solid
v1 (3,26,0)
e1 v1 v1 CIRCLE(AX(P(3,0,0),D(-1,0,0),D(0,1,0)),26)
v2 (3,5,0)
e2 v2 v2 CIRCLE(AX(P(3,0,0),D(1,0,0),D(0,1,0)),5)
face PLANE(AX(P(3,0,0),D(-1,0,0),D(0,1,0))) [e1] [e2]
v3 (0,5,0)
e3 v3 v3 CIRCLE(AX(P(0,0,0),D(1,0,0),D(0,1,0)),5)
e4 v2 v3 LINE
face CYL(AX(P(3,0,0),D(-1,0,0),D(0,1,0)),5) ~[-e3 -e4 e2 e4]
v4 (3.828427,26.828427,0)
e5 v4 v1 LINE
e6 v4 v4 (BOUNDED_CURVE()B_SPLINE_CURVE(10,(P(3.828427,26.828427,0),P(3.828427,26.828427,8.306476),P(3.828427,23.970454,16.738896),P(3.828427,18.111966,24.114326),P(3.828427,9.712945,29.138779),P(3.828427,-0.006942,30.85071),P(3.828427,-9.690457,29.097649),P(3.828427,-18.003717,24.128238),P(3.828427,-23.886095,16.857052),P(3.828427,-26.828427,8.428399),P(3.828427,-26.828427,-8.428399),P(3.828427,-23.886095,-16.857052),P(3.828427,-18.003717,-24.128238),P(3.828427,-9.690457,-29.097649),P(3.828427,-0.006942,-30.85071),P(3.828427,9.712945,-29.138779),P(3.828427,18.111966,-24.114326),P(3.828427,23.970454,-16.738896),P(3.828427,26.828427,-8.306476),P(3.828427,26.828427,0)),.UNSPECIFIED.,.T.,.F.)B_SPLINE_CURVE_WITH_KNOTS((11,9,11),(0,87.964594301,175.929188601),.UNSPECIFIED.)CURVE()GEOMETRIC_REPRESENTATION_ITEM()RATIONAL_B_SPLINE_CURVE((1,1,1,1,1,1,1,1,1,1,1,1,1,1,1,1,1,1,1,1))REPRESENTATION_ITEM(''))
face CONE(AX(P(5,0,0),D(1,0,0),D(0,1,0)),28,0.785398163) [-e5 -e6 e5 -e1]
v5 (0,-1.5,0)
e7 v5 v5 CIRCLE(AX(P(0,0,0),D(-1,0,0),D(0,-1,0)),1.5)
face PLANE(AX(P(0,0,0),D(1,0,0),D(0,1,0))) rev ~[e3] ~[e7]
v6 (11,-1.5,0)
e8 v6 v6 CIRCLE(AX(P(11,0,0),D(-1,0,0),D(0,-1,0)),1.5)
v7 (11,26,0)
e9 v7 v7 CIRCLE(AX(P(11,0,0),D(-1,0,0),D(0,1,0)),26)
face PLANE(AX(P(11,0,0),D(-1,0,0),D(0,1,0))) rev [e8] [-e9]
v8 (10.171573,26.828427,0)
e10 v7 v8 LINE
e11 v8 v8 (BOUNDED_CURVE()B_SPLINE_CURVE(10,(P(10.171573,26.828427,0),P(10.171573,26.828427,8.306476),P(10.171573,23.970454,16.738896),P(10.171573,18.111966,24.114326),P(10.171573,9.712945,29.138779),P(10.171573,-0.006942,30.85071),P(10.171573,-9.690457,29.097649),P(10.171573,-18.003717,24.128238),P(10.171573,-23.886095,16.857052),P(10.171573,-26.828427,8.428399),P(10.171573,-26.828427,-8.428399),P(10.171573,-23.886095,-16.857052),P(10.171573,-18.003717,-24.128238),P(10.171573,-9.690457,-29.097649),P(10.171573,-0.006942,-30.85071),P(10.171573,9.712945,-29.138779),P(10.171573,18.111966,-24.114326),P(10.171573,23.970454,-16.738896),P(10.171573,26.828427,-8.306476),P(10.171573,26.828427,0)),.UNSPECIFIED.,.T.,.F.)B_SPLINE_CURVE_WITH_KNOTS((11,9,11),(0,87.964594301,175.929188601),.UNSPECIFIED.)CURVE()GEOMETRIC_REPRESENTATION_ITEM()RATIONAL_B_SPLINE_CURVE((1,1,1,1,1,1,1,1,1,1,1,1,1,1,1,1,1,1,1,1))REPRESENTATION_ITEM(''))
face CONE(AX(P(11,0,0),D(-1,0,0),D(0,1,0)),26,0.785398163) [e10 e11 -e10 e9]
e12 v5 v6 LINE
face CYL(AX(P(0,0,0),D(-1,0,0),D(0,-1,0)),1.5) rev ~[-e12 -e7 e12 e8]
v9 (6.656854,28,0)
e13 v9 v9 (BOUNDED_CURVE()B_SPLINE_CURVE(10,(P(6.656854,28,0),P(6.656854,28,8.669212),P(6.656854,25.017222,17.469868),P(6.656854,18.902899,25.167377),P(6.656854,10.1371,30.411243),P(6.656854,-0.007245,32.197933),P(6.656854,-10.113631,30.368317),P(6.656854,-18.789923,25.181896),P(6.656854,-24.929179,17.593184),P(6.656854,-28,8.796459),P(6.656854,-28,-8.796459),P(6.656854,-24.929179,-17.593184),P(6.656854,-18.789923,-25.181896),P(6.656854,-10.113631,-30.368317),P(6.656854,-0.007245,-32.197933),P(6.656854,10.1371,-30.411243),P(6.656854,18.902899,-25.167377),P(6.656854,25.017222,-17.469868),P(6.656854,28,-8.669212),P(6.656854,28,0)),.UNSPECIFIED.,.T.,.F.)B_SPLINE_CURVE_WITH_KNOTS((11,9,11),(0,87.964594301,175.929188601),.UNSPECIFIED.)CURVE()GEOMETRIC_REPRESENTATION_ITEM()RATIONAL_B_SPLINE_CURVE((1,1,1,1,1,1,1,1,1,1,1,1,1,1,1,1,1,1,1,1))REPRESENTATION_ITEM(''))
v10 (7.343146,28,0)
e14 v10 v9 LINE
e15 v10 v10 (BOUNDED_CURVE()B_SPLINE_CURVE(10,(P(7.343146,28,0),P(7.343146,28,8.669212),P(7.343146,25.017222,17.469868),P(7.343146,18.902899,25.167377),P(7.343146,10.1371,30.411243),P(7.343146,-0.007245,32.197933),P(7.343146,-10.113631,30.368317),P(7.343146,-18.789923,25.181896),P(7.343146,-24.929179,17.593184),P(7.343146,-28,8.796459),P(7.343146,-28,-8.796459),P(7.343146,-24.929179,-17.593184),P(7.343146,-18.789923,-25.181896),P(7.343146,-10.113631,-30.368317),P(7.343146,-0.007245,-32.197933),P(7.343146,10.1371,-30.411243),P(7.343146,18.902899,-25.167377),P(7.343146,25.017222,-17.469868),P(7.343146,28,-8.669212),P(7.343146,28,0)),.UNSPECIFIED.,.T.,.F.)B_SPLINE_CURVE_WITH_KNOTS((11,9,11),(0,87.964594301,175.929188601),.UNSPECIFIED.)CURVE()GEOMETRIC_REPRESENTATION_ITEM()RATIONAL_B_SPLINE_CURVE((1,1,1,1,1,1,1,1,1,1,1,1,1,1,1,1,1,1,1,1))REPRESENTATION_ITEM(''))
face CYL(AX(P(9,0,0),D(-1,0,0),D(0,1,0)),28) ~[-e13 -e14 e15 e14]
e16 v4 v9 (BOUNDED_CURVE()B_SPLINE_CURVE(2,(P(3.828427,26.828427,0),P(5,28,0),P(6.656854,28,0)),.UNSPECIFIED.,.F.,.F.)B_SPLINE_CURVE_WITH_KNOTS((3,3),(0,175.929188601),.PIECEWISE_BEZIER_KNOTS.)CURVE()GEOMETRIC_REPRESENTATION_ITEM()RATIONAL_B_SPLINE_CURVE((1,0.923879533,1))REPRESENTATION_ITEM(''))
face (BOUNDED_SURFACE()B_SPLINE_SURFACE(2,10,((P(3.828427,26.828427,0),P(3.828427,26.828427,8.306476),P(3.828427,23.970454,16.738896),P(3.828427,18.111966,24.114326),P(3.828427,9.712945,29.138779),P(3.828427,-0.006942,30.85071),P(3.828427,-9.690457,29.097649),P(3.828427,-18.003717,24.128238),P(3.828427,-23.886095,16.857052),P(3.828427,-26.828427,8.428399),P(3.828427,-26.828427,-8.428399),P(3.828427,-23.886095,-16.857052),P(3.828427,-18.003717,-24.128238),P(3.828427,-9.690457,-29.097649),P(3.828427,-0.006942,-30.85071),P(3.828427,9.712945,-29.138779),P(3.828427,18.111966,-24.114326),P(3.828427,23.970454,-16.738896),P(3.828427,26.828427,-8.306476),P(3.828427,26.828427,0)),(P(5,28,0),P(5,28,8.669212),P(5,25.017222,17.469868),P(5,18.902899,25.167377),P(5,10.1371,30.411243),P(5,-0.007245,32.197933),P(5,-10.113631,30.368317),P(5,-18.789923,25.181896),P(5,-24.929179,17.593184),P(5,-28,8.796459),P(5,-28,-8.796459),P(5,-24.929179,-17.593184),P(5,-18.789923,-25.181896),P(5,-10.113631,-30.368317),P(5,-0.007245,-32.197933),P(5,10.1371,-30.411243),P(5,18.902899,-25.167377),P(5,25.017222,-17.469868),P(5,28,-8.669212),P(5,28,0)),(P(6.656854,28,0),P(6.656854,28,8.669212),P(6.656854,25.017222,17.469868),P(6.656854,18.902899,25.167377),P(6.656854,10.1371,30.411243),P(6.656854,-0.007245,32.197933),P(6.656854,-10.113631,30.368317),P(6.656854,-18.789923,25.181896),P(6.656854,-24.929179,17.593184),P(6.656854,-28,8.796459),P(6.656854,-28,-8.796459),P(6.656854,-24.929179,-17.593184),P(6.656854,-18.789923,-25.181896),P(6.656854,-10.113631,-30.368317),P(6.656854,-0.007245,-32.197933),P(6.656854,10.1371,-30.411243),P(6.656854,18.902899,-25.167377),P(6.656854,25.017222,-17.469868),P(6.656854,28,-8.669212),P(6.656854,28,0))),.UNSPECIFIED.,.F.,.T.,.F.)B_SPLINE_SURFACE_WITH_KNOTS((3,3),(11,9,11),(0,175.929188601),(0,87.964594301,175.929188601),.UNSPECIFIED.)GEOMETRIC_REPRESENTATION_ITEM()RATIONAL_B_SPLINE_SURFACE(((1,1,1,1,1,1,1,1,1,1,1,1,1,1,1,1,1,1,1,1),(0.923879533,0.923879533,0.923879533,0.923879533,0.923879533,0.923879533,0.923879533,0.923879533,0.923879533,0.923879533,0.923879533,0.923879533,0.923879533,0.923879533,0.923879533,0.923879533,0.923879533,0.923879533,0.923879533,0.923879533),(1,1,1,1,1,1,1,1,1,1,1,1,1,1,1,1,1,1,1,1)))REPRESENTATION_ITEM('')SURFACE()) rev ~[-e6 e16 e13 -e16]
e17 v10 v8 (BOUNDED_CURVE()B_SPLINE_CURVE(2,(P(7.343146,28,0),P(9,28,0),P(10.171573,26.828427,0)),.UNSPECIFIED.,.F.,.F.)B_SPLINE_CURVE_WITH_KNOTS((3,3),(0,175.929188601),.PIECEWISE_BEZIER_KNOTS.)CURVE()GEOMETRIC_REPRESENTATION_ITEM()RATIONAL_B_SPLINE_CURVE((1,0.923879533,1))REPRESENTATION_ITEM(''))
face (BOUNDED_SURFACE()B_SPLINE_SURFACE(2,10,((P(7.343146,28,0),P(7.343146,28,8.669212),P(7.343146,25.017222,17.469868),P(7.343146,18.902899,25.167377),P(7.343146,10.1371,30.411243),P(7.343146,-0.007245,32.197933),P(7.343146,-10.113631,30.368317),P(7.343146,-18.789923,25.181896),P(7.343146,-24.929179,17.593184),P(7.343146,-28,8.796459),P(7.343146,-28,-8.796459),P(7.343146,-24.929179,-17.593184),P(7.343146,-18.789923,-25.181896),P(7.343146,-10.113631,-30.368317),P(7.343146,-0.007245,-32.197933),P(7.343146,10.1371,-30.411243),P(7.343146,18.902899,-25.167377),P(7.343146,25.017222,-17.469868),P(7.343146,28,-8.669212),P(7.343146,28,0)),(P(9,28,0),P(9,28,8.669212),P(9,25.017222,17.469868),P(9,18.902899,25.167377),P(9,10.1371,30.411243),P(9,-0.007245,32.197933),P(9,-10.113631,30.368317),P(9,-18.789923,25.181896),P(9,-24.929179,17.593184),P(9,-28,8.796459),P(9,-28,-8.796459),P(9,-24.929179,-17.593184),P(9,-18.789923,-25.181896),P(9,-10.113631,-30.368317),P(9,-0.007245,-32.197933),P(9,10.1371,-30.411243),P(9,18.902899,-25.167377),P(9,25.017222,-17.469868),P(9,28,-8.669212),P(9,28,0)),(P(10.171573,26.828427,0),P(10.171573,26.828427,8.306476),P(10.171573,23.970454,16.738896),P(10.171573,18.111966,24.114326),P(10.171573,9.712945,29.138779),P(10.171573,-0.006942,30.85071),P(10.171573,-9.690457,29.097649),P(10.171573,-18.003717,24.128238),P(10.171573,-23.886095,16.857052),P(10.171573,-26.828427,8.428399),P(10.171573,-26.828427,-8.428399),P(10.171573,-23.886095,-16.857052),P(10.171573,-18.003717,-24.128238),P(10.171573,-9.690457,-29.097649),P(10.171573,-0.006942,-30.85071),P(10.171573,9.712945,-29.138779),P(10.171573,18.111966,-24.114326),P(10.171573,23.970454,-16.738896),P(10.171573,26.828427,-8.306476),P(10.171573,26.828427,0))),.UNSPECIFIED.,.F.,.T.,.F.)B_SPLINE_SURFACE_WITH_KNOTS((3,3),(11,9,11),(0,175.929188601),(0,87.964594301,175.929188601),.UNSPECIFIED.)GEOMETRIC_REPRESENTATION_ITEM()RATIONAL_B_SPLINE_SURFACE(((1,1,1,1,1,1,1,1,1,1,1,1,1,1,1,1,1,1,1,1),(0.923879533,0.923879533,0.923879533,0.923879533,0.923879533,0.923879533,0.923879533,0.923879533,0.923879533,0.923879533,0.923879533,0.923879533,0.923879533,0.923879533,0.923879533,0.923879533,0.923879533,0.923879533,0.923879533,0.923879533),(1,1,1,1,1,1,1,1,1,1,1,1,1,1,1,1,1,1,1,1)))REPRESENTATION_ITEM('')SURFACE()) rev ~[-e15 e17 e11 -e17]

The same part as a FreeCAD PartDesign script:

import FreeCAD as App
import Part
import Sketcher
Q = App.Units.Quantity


def edges_at(feature, points):
    """Names of the edges that pass closest to the given points."""
    edges = feature.Shape.Edges
    near = lambda p: min(range(len(edges)), key=lambda i: edges[i].distToShape(Part.Vertex(*p))[0])
    return sorted({f"Edge{near(p) + 1}" for p in points})


def add_polygon(sketch, points):
    """Adds a closed chain of lines whose ends are joined by coincident constraints."""
    first, n = sketch.GeometryCount, len(points)
    for a, b in zip(points, points[1:] + points[:1]):
        sketch.addGeometry(Part.LineSegment(App.Vector(*a, 0), App.Vector(*b, 0)), False)
    for i in range(n):
        sketch.addConstraint(Sketcher.Constraint("Coincident", first + i, 2, first + (i + 1) % n, 1))

doc = App.newDocument("Part")
body = doc.addObject("PartDesign::Body", "Body")

# Sketch on XY plane
sketch1 = doc.addObject("Sketcher::SketchObject", "Sketch")
body.addObject(sketch1)
sketch1.AttachmentSupport = (doc.XY_Plane, [""])
sketch1.MapMode = "FlatFace"
add_polygon(sketch1, [(0, 5), (0, 0), (11, 0), (11, 25), (9, 25), (9, 28), (5, 28), (5, 25), (3, 25), (3, 5)])  # lines 0-9
sketch1.addConstraint([
    Sketcher.Constraint("Vertical", 0),
    Sketcher.Constraint("Horizontal", 1),
    Sketcher.Constraint("Vertical", 2),
    Sketcher.Constraint("Horizontal", 3),
    Sketcher.Constraint("Vertical", 4),
    Sketcher.Constraint("Horizontal", 5),
    Sketcher.Constraint("Vertical", 6),
    Sketcher.Constraint("Horizontal", 7),
    Sketcher.Constraint("Vertical", 8),
    Sketcher.Constraint("Horizontal", 9),
    Sketcher.Constraint("Coincident", 0, 2, -1, 1),
    Sketcher.Constraint("Horizontal", 3, 2, 6, 2),
    Sketcher.Constraint("Equal", 3, 7),
    Sketcher.Constraint("Equal", 9, 4),
    Sketcher.Constraint("DistanceX", 1, 1, 1, 2, Q("11 mm")),
    Sketcher.Constraint("DistanceX", 3, 2, 3, 1, Q("2 mm")),
    Sketcher.Constraint("DistanceX", 5, 2, 5, 1, Q("4 mm")),
    Sketcher.Constraint("DistanceY", 0, 2, 0, 1, Q("5 mm")),
    Sketcher.Constraint("DistanceY", 2, 1, 2, 2, Q("25 mm")),
])
revolution = doc.addObject("PartDesign::Revolution", "Revolution")
body.addObject(revolution)
revolution.Profile = sketch1
revolution.ReferenceAxis = (sketch1, ["H_Axis"])
revolution.Angle = 360

# Sketch on YZ plane
sketch2 = doc.addObject("Sketcher::SketchObject", "Sketch001")
body.addObject(sketch2)
sketch2.AttachmentSupport = (doc.YZ_Plane, [""])
sketch2.MapMode = "FlatFace"
sketch2.addGeometry(Part.Circle(App.Vector(0, 0, 0), App.Vector(0, 0, 1), 1.5), False)
sketch2.addConstraint([
    Sketcher.Constraint("Coincident", 0, 3, -1, 1),
    Sketcher.Constraint("Diameter", 0, Q("3 mm")),
])
pocket1 = doc.addObject("PartDesign::Pocket", "Pocket")
body.addObject(pocket1)
pocket1.Profile = sketch2
pocket1.Length = 25
pocket1.Reversed = True

# Sketch on XY plane
sketch3 = doc.addObject("Sketcher::SketchObject", "Sketch002")
body.addObject(sketch3)
sketch3.AttachmentSupport = (doc.XY_Plane, [""])
sketch3.MapMode = "FlatFace"
add_polygon(sketch3, [(3, 25), (11, 25), (11, 26), (9, 28), (5, 28), (3, 26)])  # lines 0-5
sketch3.addConstraint([
    Sketcher.Constraint("Horizontal", 0),
    Sketcher.Constraint("Vertical", 1),
    Sketcher.Constraint("Horizontal", 3),
    Sketcher.Constraint("Vertical", 5),
    Sketcher.Constraint("Perpendicular", 2, 4),
    Sketcher.Constraint("Horizontal", 1, 2, 4, 2),
    Sketcher.Constraint("Equal", 2, 4),
    Sketcher.Constraint("DistanceX", 0, 1, 0, 2, Q("8 mm")),
    Sketcher.Constraint("DistanceX", 3, 2, 3, 1, Q("4 mm")),
    Sketcher.Constraint("DistanceY", 1, 1, 1, 2, Q("1 mm")),
    Sketcher.Constraint("DistanceX", -1, 1, 0, 2, Q("11 mm")),
    Sketcher.Constraint("DistanceY", -1, 1, 0, 2, Q("25 mm")),
])
revolution2 = doc.addObject("PartDesign::Revolution", "Revolution001")
body.addObject(revolution2)
revolution2.Profile = sketch3
revolution2.ReferenceAxis = (sketch3, ["H_Axis"])
revolution2.Angle = 360
doc.recompute()

fillet = doc.addObject("PartDesign::Fillet", "Fillet")
body.addObject(fillet)
fillet.Base = (revolution2, edges_at(revolution2, [(9, -28, 0), (5, -28, 0)]))
fillet.Radius = 4

doc.recompute()
